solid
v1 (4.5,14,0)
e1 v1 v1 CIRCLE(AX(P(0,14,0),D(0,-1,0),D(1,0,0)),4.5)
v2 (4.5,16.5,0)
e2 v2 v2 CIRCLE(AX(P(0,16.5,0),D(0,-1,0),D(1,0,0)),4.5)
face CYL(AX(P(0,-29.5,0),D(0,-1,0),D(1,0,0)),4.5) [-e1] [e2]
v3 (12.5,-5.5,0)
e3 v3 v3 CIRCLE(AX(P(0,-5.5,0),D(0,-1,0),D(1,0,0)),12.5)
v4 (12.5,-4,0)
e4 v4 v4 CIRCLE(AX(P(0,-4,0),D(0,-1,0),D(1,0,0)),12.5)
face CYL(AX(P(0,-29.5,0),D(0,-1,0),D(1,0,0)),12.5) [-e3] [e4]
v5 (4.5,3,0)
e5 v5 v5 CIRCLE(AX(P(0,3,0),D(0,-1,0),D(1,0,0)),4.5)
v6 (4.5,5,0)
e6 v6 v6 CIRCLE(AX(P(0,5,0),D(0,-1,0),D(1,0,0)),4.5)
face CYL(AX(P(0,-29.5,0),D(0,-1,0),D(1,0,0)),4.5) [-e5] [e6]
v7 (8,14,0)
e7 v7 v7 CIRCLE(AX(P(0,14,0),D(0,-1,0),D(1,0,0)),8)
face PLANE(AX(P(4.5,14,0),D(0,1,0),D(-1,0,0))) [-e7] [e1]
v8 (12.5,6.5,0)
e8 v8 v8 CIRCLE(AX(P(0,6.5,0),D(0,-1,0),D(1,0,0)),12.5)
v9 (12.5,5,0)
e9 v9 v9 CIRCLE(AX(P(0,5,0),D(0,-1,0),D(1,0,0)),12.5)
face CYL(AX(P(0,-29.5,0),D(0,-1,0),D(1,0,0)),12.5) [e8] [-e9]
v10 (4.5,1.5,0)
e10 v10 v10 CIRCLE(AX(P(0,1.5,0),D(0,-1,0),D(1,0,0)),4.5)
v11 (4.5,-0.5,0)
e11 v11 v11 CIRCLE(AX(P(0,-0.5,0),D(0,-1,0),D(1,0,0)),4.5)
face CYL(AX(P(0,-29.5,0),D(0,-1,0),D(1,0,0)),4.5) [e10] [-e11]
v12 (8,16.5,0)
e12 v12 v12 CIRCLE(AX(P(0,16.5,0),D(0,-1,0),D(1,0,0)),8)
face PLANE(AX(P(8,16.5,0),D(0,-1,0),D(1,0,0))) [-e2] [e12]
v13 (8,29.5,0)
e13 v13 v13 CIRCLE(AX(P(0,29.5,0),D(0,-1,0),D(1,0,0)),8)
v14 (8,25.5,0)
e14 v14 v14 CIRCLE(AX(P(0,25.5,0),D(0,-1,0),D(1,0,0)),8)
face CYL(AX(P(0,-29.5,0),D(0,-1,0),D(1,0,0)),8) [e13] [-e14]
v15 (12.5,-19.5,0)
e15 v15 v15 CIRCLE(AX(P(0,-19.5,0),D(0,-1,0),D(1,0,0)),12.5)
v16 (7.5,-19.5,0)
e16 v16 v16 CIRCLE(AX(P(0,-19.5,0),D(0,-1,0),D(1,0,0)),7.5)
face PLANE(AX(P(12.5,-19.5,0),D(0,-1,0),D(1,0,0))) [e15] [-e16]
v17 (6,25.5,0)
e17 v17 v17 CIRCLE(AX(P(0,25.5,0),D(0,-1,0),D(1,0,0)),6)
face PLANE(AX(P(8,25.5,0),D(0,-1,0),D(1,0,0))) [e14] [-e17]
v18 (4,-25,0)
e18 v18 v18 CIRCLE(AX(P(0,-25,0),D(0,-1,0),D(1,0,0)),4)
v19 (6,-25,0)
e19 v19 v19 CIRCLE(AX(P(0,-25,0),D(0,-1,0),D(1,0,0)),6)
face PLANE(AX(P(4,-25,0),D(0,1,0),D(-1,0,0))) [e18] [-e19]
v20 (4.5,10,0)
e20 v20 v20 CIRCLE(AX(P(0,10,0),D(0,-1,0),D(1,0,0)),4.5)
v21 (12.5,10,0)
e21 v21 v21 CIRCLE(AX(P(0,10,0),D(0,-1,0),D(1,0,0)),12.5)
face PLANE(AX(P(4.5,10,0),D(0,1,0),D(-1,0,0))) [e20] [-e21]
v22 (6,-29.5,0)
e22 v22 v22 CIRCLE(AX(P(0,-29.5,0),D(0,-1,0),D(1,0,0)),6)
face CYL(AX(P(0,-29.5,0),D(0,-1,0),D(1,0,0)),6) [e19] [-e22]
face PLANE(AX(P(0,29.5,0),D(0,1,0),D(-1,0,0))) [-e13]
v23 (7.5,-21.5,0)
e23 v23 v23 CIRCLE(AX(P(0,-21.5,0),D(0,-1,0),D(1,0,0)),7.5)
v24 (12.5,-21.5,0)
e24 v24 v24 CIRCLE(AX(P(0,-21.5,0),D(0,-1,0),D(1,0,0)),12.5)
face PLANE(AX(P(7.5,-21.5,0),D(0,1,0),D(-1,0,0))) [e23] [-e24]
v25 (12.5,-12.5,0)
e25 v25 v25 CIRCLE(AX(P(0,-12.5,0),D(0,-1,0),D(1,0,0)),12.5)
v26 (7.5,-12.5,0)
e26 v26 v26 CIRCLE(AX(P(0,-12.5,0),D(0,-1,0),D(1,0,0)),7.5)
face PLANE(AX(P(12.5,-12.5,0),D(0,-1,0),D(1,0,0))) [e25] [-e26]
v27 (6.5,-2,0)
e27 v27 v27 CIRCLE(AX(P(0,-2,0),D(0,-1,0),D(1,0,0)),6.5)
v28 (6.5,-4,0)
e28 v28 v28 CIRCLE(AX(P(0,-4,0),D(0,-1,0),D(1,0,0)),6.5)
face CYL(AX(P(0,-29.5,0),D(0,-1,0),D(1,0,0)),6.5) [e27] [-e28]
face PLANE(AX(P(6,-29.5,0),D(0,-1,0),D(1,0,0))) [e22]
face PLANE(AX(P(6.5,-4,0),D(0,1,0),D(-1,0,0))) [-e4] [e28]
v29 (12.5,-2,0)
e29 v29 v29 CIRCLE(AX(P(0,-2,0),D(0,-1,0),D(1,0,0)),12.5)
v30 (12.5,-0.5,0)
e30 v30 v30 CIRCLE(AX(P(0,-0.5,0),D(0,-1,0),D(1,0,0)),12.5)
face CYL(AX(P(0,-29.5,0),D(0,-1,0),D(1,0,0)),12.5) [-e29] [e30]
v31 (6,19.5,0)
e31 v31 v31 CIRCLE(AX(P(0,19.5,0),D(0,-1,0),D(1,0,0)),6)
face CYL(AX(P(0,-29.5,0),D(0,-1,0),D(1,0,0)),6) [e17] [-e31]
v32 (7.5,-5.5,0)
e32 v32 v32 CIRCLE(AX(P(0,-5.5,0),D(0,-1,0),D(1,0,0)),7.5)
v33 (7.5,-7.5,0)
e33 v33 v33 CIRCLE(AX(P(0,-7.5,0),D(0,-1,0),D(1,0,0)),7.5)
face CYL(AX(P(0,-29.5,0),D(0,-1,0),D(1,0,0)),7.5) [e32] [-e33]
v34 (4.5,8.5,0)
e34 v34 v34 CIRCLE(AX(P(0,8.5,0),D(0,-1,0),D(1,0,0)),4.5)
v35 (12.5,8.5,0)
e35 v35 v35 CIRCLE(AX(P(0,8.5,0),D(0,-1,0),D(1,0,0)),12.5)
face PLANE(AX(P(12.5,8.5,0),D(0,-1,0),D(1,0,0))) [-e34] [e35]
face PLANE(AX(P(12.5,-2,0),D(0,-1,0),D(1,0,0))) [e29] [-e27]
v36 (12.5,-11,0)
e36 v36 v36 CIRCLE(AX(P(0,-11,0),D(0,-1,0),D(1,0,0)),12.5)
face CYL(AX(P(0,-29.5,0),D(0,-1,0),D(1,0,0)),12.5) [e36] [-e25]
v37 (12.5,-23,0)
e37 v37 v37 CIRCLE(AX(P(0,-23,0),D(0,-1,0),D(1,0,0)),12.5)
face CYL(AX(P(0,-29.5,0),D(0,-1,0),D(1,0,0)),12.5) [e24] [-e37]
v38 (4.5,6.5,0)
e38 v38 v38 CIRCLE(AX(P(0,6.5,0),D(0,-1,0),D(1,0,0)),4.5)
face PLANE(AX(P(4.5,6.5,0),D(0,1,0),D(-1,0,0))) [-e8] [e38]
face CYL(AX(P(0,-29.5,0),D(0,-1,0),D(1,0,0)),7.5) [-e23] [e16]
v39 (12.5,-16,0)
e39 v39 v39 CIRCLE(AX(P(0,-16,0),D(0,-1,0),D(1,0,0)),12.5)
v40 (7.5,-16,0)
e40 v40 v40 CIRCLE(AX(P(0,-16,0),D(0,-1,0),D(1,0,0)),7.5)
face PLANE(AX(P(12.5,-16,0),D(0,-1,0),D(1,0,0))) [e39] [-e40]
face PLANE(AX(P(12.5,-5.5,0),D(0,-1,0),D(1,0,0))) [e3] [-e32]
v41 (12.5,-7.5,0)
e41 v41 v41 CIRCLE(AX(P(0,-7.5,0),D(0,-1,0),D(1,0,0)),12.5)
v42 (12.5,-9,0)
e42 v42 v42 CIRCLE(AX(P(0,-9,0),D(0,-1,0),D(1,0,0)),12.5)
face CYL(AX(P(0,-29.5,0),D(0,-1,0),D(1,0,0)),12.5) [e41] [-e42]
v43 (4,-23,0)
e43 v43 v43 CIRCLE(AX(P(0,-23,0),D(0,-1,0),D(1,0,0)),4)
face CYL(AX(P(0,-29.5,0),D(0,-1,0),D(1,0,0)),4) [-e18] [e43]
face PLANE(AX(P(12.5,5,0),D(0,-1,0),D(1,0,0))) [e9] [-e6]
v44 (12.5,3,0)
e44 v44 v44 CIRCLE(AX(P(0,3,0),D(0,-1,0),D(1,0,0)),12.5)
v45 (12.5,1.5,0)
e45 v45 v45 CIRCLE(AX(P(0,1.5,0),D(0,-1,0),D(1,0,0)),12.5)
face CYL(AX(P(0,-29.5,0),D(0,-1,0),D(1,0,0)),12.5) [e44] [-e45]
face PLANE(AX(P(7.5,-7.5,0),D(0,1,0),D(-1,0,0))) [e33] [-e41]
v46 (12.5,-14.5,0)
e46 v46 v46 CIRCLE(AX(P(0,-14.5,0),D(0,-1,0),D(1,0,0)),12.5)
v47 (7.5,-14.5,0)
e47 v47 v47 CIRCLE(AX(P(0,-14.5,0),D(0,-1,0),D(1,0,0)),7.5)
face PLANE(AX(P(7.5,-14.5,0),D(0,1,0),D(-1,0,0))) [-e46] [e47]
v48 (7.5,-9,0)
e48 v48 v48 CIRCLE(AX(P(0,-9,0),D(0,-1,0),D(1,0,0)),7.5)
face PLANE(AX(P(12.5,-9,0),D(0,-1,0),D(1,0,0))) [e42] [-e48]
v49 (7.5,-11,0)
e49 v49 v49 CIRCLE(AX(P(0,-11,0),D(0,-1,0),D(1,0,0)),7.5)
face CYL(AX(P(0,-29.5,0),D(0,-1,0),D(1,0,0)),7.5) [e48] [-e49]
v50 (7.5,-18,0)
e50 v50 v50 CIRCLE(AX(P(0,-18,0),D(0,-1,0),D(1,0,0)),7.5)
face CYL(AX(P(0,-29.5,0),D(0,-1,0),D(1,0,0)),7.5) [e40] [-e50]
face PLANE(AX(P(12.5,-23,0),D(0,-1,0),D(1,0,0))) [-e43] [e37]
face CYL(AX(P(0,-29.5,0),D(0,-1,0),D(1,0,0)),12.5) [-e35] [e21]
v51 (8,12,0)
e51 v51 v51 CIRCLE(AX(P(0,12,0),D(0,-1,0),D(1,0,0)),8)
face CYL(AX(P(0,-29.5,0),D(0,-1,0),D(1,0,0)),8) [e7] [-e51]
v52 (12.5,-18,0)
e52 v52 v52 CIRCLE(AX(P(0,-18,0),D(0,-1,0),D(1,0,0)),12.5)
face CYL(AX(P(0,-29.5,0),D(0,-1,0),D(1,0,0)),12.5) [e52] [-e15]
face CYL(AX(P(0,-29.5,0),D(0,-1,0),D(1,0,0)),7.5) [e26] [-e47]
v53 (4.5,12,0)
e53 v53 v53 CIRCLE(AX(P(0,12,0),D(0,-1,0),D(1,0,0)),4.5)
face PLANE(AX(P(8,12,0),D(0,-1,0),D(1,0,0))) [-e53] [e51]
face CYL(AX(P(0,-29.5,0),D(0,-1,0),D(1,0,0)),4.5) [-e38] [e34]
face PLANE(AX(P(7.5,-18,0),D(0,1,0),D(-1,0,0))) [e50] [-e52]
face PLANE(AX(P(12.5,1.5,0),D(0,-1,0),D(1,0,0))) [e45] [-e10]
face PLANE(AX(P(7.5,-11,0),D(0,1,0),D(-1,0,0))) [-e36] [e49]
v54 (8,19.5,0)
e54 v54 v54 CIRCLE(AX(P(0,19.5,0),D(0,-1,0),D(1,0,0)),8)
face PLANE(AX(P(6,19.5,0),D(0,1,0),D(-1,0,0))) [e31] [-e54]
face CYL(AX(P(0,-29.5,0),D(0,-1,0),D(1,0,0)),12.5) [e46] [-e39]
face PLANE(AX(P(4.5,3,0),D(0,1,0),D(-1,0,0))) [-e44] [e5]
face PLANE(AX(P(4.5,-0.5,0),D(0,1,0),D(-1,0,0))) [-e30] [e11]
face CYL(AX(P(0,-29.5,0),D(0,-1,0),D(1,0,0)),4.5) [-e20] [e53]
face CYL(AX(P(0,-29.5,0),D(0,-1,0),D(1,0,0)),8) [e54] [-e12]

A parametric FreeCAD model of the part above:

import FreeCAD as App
import Part
import Sketcher
from FreeCAD import Vector

doc = App.newDocument("Part")
body = doc.addObject("PartDesign::Body", "Body")

# Sketch on XY plane
sketch1 = body.newObject("Sketcher::SketchObject", "Sketch")
sketch1.AttachmentSupport = (doc.getObject("XY_Plane"), [""])
sketch1.MapMode = "FlatFace"
sketch1.addGeometry([
    Part.LineSegment(Vector(8, 29.5, 0), Vector(0, 29.5, 0)),  # 0
    Part.LineSegment(Vector(0, 29.5, 0), Vector(0, -29.5, 0)),  # 1
    Part.LineSegment(Vector(0, -29.5, 0), Vector(6, -29.5, 0)),  # 2
    Part.LineSegment(Vector(6, -29.5, 0), Vector(6, -25, 0)),  # 3
    Part.LineSegment(Vector(6, -25, 0), Vector(4, -25, 0)),  # 4
    Part.LineSegment(Vector(4, -25, 0), Vector(4, -23, 0)),  # 5
    Part.LineSegment(Vector(4, -23, 0), Vector(12.5, -23, 0)),  # 6
    Part.LineSegment(Vector(12.5, -23, 0), Vector(12.5, -21.5, 0)),  # 7
    Part.LineSegment(Vector(12.5, -21.5, 0), Vector(7.5, -21.5, 0)),  # 8
    Part.LineSegment(Vector(7.5, -21.5, 0), Vector(7.5, -19.5, 0)),  # 9
    Part.LineSegment(Vector(7.5, -19.5, 0), Vector(12.5, -19.5, 0)),  # 10
    Part.LineSegment(Vector(12.5, -19.5, 0), Vector(12.5, -18, 0)),  # 11
    Part.LineSegment(Vector(12.5, -18, 0), Vector(7.5, -18, 0)),  # 12
    Part.LineSegment(Vector(7.5, -18, 0), Vector(7.5, -16, 0)),  # 13
    Part.LineSegment(Vector(7.5, -16, 0), Vector(12.5, -16, 0)),  # 14
    Part.LineSegment(Vector(12.5, -16, 0), Vector(12.5, -14.5, 0)),  # 15
    Part.LineSegment(Vector(12.5, -14.5, 0), Vector(7.5, -14.5, 0)),  # 16
    Part.LineSegment(Vector(7.5, -14.5, 0), Vector(7.5, -12.5, 0)),  # 17
    Part.LineSegment(Vector(7.5, -12.5, 0), Vector(12.5, -12.5, 0)),  # 18
    Part.LineSegment(Vector(12.5, -12.5, 0), Vector(12.5, -11, 0)),  # 19
    Part.LineSegment(Vector(12.5, -11, 0), Vector(7.5, -11, 0)),  # 20
    Part.LineSegment(Vector(7.5, -11, 0), Vector(7.5, -9, 0)),  # 21
    Part.LineSegment(Vector(7.5, -9, 0), Vector(12.5, -9, 0)),  # 22
    Part.LineSegment(Vector(12.5, -9, 0), Vector(12.5, -7.5, 0)),  # 23
    Part.LineSegment(Vector(12.5, -7.5, 0), Vector(7.5, -7.5, 0)),  # 24
    Part.LineSegment(Vector(7.5, -7.5, 0), Vector(7.5, -5.5, 0)),  # 25
    Part.LineSegment(Vector(7.5, -5.5, 0), Vector(12.5, -5.5, 0)),  # 26
    Part.LineSegment(Vector(12.5, -5.5, 0), Vector(12.5, -4, 0)),  # 27
    Part.LineSegment(Vector(12.5, -4, 0), Vector(6.5, -4, 0)),  # 28
    Part.LineSegment(Vector(6.5, -4, 0), Vector(6.5, -2, 0)),  # 29
    Part.LineSegment(Vector(6.5, -2, 0), Vector(12.5, -2, 0)),  # 30
    Part.LineSegment(Vector(12.5, -2, 0), Vector(12.5, -0.5, 0)),  # 31
    Part.LineSegment(Vector(12.5, -0.5, 0), Vector(4.5, -0.5, 0)),  # 32
    Part.LineSegment(Vector(4.5, -0.5, 0), Vector(4.5, 1.5, 0)),  # 33
    Part.LineSegment(Vector(4.5, 1.5, 0), Vector(12.5, 1.5, 0)),  # 34
    Part.LineSegment(Vector(12.5, 1.5, 0), Vector(12.5, 3, 0)),  # 35
    Part.LineSegment(Vector(12.5, 3, 0), Vector(4.5, 3, 0)),  # 36
    Part.LineSegment(Vector(4.5, 3, 0), Vector(4.5, 5, 0)),  # 37
    Part.LineSegment(Vector(4.5, 5, 0), Vector(12.5, 5, 0)),  # 38
    Part.LineSegment(Vector(12.5, 5, 0), Vector(12.5, 6.5, 0)),  # 39
    Part.LineSegment(Vector(12.5, 6.5, 0), Vector(4.5, 6.5, 0)),  # 40
    Part.LineSegment(Vector(4.5, 6.5, 0), Vector(4.5, 8.5, 0)),  # 41
    Part.LineSegment(Vector(4.5, 8.5, 0), Vector(12.5, 8.5, 0)),  # 42
    Part.LineSegment(Vector(12.5, 8.5, 0), Vector(12.5, 10, 0)),  # 43
    Part.LineSegment(Vector(12.5, 10, 0), Vector(4.5, 10, 0)),  # 44
    Part.LineSegment(Vector(4.5, 10, 0), Vector(4.5, 12, 0)),  # 45
    Part.LineSegment(Vector(4.5, 12, 0), Vector(8, 12, 0)),  # 46
    Part.LineSegment(Vector(8, 12, 0), Vector(8, 14, 0)),  # 47
    Part.LineSegment(Vector(8, 14, 0), Vector(4.5, 14, 0)),  # 48
    Part.LineSegment(Vector(4.5, 14, 0), Vector(4.5, 16.5, 0)),  # 49
    Part.LineSegment(Vector(4.5, 16.5, 0), Vector(8, 16.5, 0)),  # 50
    Part.LineSegment(Vector(8, 16.5, 0), Vector(8, 19.5, 0)),  # 51
    Part.LineSegment(Vector(8, 19.5, 0), Vector(6, 19.5, 0)),  # 52
    Part.LineSegment(Vector(6, 19.5, 0), Vector(6, 25.5, 0)),  # 53
    Part.LineSegment(Vector(6, 25.5, 0), Vector(8, 25.5, 0)),  # 54
    Part.LineSegment(Vector(8, 25.5, 0), Vector(8, 29.5, 0)),  # 55
], False)
sketch1.addConstraint([
    Sketcher.Constraint("Coincident", 0, 2, 1, 1),
    Sketcher.Constraint("Coincident", 1, 2, 2, 1),
    Sketcher.Constraint("Coincident", 2, 2, 3, 1),
    Sketcher.Constraint("Coincident", 3, 2, 4, 1),
    Sketcher.Constraint("Coincident", 4, 2, 5, 1),
    Sketcher.Constraint("Coincident", 5, 2, 6, 1),
    Sketcher.Constraint("Coincident", 6, 2, 7, 1),
    Sketcher.Constraint("Coincident", 7, 2, 8, 1),
    Sketcher.Constraint("Coincident", 8, 2, 9, 1),
    Sketcher.Constraint("Coincident", 9, 2, 10, 1),
    Sketcher.Constraint("Coincident", 10, 2, 11, 1),
    Sketcher.Constraint("Coincident", 11, 2, 12, 1),
    Sketcher.Constraint("Coincident", 12, 2, 13, 1),
    Sketcher.Constraint("Coincident", 13, 2, 14, 1),
    Sketcher.Constraint("Coincident", 14, 2, 15, 1),
    Sketcher.Constraint("Coincident", 15, 2, 16, 1),
    Sketcher.Constraint("Coincident", 16, 2, 17, 1),
    Sketcher.Constraint("Coincident", 17, 2, 18, 1),
    Sketcher.Constraint("Coincident", 18, 2, 19, 1),
    Sketcher.Constraint("Coincident", 19, 2, 20, 1),
    Sketcher.Constraint("Coincident", 20, 2, 21, 1),
    Sketcher.Constraint("Coincident", 21, 2, 22, 1),
    Sketcher.Constraint("Coincident", 22, 2, 23, 1),
    Sketcher.Constraint("Coincident", 23, 2, 24, 1),
    Sketcher.Constraint("Coincident", 24, 2, 25, 1),
    Sketcher.Constraint("Coincident", 25, 2, 26, 1),
    Sketcher.Constraint("Coincident", 26, 2, 27, 1),
    Sketcher.Constraint("Coincident", 27, 2, 28, 1),
    Sketcher.Constraint("Coincident", 28, 2, 29, 1),
    Sketcher.Constraint("Coincident", 29, 2, 30, 1),
    Sketcher.Constraint("Coincident", 30, 2, 31, 1),
    Sketcher.Constraint("Coincident", 31, 2, 32, 1),
    Sketcher.Constraint("Coincident", 32, 2, 33, 1),
    Sketcher.Constraint("Coincident", 33, 2, 34, 1),
    Sketcher.Constraint("Coincident", 34, 2, 35, 1),
    Sketcher.Constraint("Coincident", 35, 2, 36, 1),
    Sketcher.Constraint("Coincident", 36, 2, 37, 1),
    Sketcher.Constraint("Coincident", 37, 2, 38, 1),
    Sketcher.Constraint("Coincident", 38, 2, 39, 1),
    Sketcher.Constraint("Coincident", 39, 2, 40, 1),
    Sketcher.Constraint("Coincident", 40, 2, 41, 1),
    Sketcher.Constraint("Coincident", 41, 2, 42, 1),
    Sketcher.Constraint("Coincident", 42, 2, 43, 1),
    Sketcher.Constraint("Coincident", 43, 2, 44, 1),
    Sketcher.Constraint("Coincident", 44, 2, 45, 1),
    Sketcher.Constraint("Coincident", 45, 2, 46, 1),
    Sketcher.Constraint("Coincident", 46, 2, 47, 1),
    Sketcher.Constraint("Coincident", 47, 2, 48, 1),
    Sketcher.Constraint("Coincident", 48, 2, 49, 1),
    Sketcher.Constraint("Coincident", 49, 2, 50, 1),
    Sketcher.Constraint("Coincident", 50, 2, 51, 1),
    Sketcher.Constraint("Coincident", 51, 2, 52, 1),
    Sketcher.Constraint("Coincident", 52, 2, 53, 1),
    Sketcher.Constraint("Coincident", 53, 2, 54, 1),
    Sketcher.Constraint("Coincident", 54, 2, 55, 1),
    Sketcher.Constraint("Coincident", 55, 2, 0, 1),
    Sketcher.Constraint("Horizontal", 0),
    Sketcher.Constraint("Vertical", 1),
    Sketcher.Constraint("Horizontal", 2),
    Sketcher.Constraint("Vertical", 3),
    Sketcher.Constraint("Horizontal", 4),
    Sketcher.Constraint("Vertical", 5),
    Sketcher.Constraint("Horizontal", 6),
    Sketcher.Constraint("Vertical", 7),
    Sketcher.Constraint("Horizontal", 8),
    Sketcher.Constraint("Vertical", 9),
    Sketcher.Constraint("Horizontal", 10),
    Sketcher.Constraint("Vertical", 11),
    Sketcher.Constraint("Horizontal", 12),
    Sketcher.Constraint("Vertical", 13),
    Sketcher.Constraint("Horizontal", 14),
    Sketcher.Constraint("Vertical", 15),
    Sketcher.Constraint("Horizontal", 16),
    Sketcher.Constraint("Vertical", 17),
    Sketcher.Constraint("Horizontal", 18),
    Sketcher.Constraint("Vertical", 19),
    Sketcher.Constraint("Horizontal", 20),
    Sketcher.Constraint("Vertical", 21),
    Sketcher.Constraint("Horizontal", 22),
    Sketcher.Constraint("Vertical", 23),
    Sketcher.Constraint("Horizontal", 24),
    Sketcher.Constraint("Vertical", 25),
    Sketcher.Constraint("Horizontal", 26),
    Sketcher.Constraint("Vertical", 27),
    Sketcher.Constraint("Horizontal", 28),
    Sketcher.Constraint("Vertical", 29),
    Sketcher.Constraint("Horizontal", 30),
    Sketcher.Constraint("Vertical", 31),
    Sketcher.Constraint("Horizontal", 32),
    Sketcher.Constraint("Vertical", 33),
    Sketcher.Constraint("Horizontal", 34),
    Sketcher.Constraint("Vertical", 35),
    Sketcher.Constraint("Horizontal", 36),
    Sketcher.Constraint("Vertical", 37),
    Sketcher.Constraint("Horizontal", 38),
    Sketcher.Constraint("Vertical", 39),
    Sketcher.Constraint("Horizontal", 40),
    Sketcher.Constraint("Vertical", 41),
    Sketcher.Constraint("Horizontal", 42),
    Sketcher.Constraint("Vertical", 43),
    Sketcher.Constraint("Horizontal", 44),
    Sketcher.Constraint("Vertical", 45),
    Sketcher.Constraint("Horizontal", 46),
    Sketcher.Constraint("Vertical", 47),
    Sketcher.Constraint("Horizontal", 48),
    Sketcher.Constraint("Vertical", 49),
    Sketcher.Constraint("Horizontal", 50),
    Sketcher.Constraint("Vertical", 51),
    Sketcher.Constraint("Horizontal", 52),
    Sketcher.Constraint("Vertical", 53),
    Sketcher.Constraint("Horizontal", 54),
    Sketcher.Constraint("Vertical", 55),
    Sketcher.Constraint("Symmetric", 0, 2, 1, 2, -1, 1),
    Sketcher.Constraint("Vertical", 7, 2, 10, 2),
    Sketcher.Constraint("Vertical", 9, 2, 12, 2),
    Sketcher.Constraint("Vertical", 11, 2, 14, 2),
    Sketcher.Constraint("Vertical", 13, 2, 16, 2),
    Sketcher.Constraint("Vertical", 15, 2, 18, 2),
    Sketcher.Constraint("Vertical", 17, 2, 20, 2),
    Sketcher.Constraint("Vertical", 19, 2, 22, 2),
    Sketcher.Constraint("Vertical", 21, 2, 24, 2),
    Sketcher.Constraint("Vertical", 23, 2, 26, 2),
    Sketcher.Constraint("Vertical", 27, 2, 30, 2),
    Sketcher.Constraint("Vertical", 31, 2, 34, 2),
    Sketcher.Constraint("Vertical", 33, 2, 36, 2),
    Sketcher.Constraint("Vertical", 35, 2, 38, 2),
    Sketcher.Constraint("Vertical", 37, 2, 40, 2),
    Sketcher.Constraint("Vertical", 39, 2, 42, 2),
    Sketcher.Constraint("Vertical", 41, 2, 44, 2),
    Sketcher.Constraint("Vertical", 45, 2, 48, 2),
    Sketcher.Constraint("Vertical", 47, 2, 50, 2),
    Sketcher.Constraint("Vertical", 3, 2, 52, 2),
    Sketcher.Constraint("Vertical", 51, 2, 54, 2),
    Sketcher.Constraint("Equal", 2, 28),
    Sketcher.Constraint("Equal", 0, 32),
    Sketcher.Constraint("Equal", 4, 52),
    Sketcher.Constraint("Equal", 54, 5),
    Sketcher.Constraint("Equal", 5, 9),
    Sketcher.Constraint("Equal", 7, 11),
    Sketcher.Constraint("Equal", 9, 13),
    Sketcher.Constraint("Equal", 11, 15),
    Sketcher.Constraint("Equal", 13, 17),
    Sketcher.Constraint("Equal", 15, 19),
    Sketcher.Constraint("Equal", 17, 21),
    Sketcher.Constraint("Equal", 19, 23),
    Sketcher.Constraint("Equal", 21, 25),
    Sketcher.Constraint("Equal", 23, 27),
    Sketcher.Constraint("Equal", 25, 29),
    Sketcher.Constraint("Equal", 27, 31),
    Sketcher.Constraint("Equal", 29, 33),
    Sketcher.Constraint("Equal", 31, 35),
    Sketcher.Constraint("Equal", 33, 37),
    Sketcher.Constraint("Equal", 35, 39),
    Sketcher.Constraint("Equal", 37, 41),
    Sketcher.Constraint("Equal", 39, 43),
    Sketcher.Constraint("Equal", 41, 45),
    Sketcher.Constraint("Equal", 45, 47),
    Sketcher.Constraint("Equal", 30, 53),
    Sketcher.Constraint("DistanceX", 0, 2, 0, 1, 8.0),
    Sketcher.Constraint("DistanceX", 2, 1, 2, 2, 6.0),
    Sketcher.Constraint("DistanceX", 8, 2, 8, 1, 5.0),
    Sketcher.Constraint("DistanceY", 1, 2, 1, 1, 59.0),
    Sketcher.Constraint("DistanceY", 51, 1, 51, 2, 3.0),
    Sketcher.Constraint("DistanceY", 55, 1, 55, 2, 4.0),
    Sketcher.Constraint("DistanceX", 6, 1, 6, 2, 8.5),
    Sketcher.Constraint("DistanceY", 3, 1, 3, 2, 4.5),
    Sketcher.Constraint("DistanceY", 7, 1, 7, 2, 1.5),
])
revolution = body.newObject("PartDesign::Revolution", "Revolution")
revolution.Profile = sketch1
revolution.ReferenceAxis = (sketch1, ["V_Axis"])
revolution.Angle = 360

doc.recompute()
